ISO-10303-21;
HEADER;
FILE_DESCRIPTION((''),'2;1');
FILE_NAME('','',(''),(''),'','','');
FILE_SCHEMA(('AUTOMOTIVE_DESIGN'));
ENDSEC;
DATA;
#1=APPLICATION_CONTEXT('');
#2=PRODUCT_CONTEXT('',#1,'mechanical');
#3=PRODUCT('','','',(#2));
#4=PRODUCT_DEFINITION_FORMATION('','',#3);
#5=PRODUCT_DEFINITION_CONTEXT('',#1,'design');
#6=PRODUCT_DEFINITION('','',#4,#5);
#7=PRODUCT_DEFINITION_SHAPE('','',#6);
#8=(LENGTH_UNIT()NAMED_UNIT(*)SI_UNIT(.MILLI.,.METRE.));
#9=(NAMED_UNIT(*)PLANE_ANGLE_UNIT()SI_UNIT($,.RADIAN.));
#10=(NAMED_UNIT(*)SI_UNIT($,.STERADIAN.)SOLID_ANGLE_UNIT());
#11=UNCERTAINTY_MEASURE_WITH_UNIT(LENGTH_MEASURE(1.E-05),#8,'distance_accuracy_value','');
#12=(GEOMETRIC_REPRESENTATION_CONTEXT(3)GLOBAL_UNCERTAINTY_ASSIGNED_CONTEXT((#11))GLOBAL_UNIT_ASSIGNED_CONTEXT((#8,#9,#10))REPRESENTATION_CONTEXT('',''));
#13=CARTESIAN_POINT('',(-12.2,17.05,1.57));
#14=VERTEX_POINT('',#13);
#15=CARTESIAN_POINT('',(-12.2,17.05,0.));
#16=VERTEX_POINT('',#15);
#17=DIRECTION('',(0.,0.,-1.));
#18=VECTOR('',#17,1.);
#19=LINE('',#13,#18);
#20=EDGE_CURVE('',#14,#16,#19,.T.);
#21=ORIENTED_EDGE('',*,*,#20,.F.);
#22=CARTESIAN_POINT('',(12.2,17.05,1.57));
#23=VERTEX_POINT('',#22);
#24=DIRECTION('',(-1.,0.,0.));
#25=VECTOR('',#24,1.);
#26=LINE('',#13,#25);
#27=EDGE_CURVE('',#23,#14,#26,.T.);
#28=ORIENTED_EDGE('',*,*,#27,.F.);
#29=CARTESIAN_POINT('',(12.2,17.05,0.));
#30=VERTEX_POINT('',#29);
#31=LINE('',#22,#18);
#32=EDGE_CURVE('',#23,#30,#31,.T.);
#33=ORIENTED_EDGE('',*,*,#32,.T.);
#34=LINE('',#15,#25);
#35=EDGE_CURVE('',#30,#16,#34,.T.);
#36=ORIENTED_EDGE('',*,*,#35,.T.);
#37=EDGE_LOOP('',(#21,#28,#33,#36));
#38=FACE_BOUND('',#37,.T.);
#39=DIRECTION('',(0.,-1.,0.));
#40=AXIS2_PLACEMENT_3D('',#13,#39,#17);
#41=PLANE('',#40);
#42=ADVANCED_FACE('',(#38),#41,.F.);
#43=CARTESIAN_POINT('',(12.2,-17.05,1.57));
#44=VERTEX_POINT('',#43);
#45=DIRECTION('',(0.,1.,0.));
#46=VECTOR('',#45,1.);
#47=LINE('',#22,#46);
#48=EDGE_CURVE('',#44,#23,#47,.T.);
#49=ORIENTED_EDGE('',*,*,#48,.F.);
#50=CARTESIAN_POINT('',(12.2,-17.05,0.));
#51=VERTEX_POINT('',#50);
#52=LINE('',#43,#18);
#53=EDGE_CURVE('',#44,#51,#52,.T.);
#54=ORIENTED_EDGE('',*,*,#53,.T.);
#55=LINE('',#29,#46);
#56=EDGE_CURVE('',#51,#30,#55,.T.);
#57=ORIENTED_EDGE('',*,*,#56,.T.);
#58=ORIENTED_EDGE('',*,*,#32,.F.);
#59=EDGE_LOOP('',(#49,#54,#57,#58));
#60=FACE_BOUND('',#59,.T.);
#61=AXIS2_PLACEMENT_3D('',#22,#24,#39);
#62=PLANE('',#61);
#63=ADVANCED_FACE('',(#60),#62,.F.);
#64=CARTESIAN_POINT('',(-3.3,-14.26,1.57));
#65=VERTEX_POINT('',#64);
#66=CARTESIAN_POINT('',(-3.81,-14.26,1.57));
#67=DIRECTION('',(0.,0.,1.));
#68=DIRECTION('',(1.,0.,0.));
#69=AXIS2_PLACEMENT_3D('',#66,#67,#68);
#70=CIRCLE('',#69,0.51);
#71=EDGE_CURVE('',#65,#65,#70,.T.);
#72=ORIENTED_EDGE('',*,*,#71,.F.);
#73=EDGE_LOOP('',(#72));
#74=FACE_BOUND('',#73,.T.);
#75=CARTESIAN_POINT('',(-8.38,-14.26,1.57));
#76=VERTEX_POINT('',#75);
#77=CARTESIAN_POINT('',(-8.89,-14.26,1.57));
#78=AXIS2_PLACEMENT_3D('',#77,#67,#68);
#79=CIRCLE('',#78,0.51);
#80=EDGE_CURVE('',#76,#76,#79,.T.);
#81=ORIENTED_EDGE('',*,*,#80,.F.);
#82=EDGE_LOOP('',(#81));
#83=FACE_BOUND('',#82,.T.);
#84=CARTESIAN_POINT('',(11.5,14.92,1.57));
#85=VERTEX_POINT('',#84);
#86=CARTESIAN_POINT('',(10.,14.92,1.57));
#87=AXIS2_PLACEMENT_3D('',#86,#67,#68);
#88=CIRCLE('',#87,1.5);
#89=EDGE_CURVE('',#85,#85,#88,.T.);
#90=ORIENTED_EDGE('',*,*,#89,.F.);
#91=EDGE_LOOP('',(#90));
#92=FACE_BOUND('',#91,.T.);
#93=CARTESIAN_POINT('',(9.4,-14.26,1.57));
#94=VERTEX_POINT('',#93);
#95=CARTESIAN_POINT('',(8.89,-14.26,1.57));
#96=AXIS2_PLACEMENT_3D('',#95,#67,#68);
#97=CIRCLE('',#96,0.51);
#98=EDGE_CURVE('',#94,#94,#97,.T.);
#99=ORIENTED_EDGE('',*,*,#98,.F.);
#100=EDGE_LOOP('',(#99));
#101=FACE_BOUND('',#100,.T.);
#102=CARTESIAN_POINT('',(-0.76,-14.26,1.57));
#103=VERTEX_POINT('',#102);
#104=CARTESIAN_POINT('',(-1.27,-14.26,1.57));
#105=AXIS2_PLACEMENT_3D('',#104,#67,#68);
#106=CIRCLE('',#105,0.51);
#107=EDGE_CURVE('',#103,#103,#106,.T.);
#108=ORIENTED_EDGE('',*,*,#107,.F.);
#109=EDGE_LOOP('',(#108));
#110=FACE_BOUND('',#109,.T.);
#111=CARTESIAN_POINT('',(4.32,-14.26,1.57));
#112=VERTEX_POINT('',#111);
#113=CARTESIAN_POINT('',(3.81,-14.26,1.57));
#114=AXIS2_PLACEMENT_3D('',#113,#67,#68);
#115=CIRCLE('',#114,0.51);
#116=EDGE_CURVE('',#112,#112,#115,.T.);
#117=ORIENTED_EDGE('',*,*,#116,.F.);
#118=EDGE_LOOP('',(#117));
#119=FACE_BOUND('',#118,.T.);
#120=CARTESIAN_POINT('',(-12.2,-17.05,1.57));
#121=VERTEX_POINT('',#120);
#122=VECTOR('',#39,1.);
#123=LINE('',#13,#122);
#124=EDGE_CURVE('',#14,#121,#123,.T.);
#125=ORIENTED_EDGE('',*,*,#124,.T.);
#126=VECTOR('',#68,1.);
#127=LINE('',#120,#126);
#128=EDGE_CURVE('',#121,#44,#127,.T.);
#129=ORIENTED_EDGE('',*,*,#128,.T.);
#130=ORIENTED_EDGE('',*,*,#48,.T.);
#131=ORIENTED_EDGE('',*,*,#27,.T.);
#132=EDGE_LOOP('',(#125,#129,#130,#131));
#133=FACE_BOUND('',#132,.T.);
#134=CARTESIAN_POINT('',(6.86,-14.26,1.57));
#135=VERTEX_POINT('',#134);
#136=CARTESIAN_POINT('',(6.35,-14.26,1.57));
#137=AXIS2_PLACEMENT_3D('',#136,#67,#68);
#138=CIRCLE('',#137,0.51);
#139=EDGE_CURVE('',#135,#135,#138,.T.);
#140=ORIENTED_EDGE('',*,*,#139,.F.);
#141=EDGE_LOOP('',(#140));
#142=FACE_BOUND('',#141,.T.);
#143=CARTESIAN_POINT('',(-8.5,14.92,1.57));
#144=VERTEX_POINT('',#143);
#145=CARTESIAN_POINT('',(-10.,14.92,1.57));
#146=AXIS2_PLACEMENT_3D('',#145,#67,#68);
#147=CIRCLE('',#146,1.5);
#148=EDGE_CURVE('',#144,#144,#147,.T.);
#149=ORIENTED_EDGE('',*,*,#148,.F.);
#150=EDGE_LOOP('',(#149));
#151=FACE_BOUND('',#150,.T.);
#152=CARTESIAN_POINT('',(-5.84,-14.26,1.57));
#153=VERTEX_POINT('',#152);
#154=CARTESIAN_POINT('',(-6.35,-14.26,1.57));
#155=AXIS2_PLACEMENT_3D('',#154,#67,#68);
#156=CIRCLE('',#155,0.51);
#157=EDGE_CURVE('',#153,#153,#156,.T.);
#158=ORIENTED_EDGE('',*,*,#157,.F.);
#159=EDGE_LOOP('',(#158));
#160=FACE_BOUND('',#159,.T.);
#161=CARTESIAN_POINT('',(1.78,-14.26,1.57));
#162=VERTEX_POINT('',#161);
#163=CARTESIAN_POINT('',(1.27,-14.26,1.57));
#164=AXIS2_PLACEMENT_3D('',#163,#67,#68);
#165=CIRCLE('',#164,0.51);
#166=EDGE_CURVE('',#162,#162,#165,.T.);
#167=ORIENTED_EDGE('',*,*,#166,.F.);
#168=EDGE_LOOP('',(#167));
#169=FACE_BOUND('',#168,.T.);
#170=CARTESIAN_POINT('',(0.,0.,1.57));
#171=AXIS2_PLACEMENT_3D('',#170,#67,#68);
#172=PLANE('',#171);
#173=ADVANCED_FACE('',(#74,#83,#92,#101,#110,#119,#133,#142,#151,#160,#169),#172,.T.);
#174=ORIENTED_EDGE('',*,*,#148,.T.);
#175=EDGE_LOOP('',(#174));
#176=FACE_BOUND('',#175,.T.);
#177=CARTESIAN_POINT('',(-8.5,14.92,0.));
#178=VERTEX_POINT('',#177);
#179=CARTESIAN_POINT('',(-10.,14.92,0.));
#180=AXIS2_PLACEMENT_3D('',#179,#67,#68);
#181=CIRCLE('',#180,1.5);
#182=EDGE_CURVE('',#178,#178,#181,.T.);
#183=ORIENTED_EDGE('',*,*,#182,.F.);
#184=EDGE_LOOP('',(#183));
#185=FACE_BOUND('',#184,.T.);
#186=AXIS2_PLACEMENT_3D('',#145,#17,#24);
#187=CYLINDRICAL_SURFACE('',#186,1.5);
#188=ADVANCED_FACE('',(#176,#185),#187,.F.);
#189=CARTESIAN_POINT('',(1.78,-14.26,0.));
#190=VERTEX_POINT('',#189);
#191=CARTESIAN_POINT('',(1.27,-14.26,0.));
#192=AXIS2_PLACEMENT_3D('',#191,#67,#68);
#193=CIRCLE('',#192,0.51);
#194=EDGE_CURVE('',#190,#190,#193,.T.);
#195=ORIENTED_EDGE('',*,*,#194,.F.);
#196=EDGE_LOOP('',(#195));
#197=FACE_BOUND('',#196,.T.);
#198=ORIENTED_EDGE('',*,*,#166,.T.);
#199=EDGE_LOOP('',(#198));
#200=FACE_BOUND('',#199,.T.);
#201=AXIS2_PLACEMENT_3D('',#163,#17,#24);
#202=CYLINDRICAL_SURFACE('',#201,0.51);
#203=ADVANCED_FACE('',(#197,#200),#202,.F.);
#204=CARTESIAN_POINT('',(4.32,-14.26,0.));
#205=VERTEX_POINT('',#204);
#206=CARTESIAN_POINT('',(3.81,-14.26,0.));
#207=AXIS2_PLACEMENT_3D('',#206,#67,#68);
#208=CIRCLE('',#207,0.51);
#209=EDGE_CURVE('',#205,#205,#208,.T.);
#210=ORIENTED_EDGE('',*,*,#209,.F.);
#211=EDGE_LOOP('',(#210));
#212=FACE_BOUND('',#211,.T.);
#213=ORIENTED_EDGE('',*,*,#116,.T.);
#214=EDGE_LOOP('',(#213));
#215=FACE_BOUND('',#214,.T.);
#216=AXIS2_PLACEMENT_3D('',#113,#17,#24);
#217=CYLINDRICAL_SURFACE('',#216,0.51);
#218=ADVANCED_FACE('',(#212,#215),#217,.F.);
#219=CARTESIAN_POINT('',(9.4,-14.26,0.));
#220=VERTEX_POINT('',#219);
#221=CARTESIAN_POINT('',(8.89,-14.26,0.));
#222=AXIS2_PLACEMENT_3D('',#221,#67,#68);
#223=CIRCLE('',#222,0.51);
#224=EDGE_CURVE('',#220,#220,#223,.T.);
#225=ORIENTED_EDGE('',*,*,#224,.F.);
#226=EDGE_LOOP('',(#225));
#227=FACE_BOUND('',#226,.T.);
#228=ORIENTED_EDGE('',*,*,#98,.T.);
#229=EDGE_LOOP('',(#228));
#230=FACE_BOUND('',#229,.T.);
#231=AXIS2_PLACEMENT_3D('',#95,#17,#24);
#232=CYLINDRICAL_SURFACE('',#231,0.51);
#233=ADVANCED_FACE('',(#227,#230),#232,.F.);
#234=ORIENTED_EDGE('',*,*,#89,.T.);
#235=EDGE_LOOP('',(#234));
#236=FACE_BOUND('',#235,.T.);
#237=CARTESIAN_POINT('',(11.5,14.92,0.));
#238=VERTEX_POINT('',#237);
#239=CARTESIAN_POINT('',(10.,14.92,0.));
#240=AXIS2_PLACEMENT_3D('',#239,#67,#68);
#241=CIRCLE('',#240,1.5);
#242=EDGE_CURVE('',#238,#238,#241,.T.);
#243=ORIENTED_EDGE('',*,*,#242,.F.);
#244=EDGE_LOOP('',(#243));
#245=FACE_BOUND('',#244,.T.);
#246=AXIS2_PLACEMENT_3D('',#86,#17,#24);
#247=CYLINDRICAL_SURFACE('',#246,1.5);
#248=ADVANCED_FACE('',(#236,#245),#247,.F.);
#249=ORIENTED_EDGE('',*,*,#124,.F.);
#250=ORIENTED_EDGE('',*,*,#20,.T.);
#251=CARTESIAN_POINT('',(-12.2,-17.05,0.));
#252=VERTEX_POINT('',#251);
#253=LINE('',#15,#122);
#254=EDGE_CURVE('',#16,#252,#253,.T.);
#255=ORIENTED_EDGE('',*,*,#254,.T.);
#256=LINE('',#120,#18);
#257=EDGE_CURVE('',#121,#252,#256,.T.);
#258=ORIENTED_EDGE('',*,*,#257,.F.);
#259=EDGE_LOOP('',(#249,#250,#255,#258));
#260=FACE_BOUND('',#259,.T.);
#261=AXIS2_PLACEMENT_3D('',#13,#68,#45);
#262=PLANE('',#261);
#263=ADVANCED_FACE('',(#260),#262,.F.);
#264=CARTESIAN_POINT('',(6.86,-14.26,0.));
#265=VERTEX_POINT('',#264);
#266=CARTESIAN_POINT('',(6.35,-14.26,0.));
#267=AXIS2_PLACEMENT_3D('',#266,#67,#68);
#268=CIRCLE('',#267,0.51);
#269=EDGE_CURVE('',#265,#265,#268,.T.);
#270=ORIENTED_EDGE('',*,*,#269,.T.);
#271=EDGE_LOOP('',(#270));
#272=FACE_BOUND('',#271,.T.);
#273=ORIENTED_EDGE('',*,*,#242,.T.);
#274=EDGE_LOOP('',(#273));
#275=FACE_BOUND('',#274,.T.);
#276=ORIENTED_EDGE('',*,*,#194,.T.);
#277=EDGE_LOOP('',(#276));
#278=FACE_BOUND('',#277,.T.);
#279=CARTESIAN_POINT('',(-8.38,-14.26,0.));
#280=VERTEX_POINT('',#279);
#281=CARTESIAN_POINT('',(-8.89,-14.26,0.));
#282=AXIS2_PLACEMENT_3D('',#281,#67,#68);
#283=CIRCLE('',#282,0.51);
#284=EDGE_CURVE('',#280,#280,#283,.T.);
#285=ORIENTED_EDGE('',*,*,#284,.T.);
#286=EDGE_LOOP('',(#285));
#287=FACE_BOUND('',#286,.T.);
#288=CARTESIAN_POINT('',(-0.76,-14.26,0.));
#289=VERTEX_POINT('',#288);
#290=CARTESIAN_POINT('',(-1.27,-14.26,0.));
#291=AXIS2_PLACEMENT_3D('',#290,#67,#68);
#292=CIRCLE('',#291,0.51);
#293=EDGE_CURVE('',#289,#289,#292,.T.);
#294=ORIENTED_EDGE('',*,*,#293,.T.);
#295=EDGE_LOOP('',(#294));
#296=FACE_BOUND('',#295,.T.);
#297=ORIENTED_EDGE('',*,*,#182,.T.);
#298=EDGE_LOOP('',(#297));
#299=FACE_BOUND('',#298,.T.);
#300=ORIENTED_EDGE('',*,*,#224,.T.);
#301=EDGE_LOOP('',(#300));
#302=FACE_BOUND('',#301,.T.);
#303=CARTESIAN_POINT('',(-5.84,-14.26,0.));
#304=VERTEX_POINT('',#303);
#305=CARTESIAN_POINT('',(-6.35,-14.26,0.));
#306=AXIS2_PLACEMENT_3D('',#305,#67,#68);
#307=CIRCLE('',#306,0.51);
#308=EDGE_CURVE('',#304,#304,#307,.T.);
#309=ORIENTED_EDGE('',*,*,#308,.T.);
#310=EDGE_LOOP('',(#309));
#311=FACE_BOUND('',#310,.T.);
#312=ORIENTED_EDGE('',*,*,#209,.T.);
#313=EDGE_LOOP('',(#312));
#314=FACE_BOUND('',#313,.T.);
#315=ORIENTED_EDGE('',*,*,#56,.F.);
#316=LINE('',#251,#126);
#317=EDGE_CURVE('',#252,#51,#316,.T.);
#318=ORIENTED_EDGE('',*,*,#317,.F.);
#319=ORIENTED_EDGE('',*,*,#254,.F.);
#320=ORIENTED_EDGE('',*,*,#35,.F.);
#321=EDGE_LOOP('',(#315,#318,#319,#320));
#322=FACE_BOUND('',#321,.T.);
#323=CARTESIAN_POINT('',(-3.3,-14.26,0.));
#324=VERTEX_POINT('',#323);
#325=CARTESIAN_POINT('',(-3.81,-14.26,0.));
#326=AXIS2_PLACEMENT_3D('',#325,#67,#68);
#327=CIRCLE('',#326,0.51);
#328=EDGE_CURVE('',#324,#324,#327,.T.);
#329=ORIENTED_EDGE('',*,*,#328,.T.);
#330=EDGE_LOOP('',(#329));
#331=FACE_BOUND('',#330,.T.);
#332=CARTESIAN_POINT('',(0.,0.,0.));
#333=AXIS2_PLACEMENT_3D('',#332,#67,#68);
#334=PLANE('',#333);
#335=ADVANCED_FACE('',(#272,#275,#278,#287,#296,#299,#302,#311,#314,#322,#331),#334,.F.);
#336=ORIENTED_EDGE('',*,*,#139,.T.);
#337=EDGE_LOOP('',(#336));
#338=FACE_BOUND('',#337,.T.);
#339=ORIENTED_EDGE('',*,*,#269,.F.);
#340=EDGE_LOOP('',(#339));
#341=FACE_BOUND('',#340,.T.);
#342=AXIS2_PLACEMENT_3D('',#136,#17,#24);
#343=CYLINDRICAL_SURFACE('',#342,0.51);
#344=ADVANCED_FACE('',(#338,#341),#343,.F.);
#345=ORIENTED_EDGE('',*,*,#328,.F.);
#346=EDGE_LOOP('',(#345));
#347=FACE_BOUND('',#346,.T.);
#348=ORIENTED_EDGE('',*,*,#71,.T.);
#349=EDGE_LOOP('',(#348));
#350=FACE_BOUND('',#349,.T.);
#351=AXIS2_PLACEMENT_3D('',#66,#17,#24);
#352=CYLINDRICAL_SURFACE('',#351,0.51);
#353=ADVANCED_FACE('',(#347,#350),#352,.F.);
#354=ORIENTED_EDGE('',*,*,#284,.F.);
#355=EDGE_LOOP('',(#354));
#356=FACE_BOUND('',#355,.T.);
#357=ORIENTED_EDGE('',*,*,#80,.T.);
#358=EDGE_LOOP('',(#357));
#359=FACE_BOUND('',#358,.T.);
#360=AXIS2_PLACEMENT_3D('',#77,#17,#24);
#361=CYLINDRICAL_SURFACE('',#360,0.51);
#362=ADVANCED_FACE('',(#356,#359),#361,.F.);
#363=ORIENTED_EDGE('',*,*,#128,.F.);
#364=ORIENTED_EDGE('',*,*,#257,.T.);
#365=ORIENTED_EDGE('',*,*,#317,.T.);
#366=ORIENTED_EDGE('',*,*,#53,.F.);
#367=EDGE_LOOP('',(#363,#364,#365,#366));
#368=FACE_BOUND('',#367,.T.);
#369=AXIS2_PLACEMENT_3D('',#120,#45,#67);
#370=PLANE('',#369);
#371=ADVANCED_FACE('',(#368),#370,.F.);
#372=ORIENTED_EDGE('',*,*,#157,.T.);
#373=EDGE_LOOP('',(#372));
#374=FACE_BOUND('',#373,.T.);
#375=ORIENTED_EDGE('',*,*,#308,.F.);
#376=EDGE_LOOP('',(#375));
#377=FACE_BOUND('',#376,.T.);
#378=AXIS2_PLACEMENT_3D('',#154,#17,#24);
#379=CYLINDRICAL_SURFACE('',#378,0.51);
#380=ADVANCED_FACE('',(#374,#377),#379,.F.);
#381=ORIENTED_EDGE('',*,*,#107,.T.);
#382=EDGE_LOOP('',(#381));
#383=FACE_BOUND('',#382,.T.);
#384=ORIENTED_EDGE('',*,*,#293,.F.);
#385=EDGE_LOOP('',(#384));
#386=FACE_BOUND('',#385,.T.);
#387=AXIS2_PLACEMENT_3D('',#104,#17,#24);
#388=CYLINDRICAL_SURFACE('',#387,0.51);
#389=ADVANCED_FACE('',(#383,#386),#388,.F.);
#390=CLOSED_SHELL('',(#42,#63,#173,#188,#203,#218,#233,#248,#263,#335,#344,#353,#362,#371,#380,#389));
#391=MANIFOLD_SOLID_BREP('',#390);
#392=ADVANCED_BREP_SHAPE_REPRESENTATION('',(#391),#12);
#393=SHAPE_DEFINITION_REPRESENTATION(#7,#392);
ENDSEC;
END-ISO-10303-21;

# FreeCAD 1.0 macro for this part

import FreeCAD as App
import Part
import Sketcher
from FreeCAD import Vector


def add_polygon(sketch, points):
    """Adds a closed chain of lines whose ends are joined by coincident constraints."""
    first, n = sketch.GeometryCount, len(points)
    for a, b in zip(points, points[1:] + points[:1]):
        sketch.addGeometry(Part.LineSegment(App.Vector(*a, 0), App.Vector(*b, 0)), False)
    for i in range(n):
        sketch.addConstraint(Sketcher.Constraint("Coincident", first + i, 2, first + (i + 1) % n, 1))

doc = App.newDocument("Part")
body = doc.addObject("PartDesign::Body", "Body")

# Sketch on XY plane
sketch1 = body.newObject("Sketcher::SketchObject", "Sketch")
sketch1.AttachmentSupport = (doc.getObject("XY_Plane"), [""])
sketch1.MapMode = "FlatFace"
add_polygon(sketch1, [(-12.2, 17.1), (-12.2, -17.1), (12.2, -17.1), (12.2, 17.1)])  # lines 0-3
sketch1.addGeometry(Part.Circle(Vector(-8.9, -14.3, 0), Vector(0, 0, 1), 0.5), False)  # 4
sketch1.addGeometry(Part.Circle(Vector(-6.3, -14.3, 0), Vector(0, 0, 1), 0.5), False)  # 5
sketch1.addGeometry(Part.Circle(Vector(-3.8, -14.3, 0), Vector(0, 0, 1), 0.5), False)  # 6
sketch1.addGeometry(Part.Circle(Vector(-1.3, -14.3, 0), Vector(0, 0, 1), 0.5), False)  # 7
sketch1.addGeometry(Part.Circle(Vector(1.3, -14.3, 0), Vector(0, 0, 1), 0.5), False)  # 8
sketch1.addGeometry(Part.Circle(Vector(3.8, -14.3, 0), Vector(0, 0, 1), 0.5), False)  # 9
sketch1.addGeometry(Part.Circle(Vector(6.3, -14.3, 0), Vector(0, 0, 1), 0.5), False)  # 10
sketch1.addGeometry(Part.Circle(Vector(8.9, -14.3, 0), Vector(0, 0, 1), 0.5), False)  # 11
sketch1.addGeometry(Part.Circle(Vector(-10, 14.9, 0), Vector(0, 0, 1), 1.5), False)  # 12
sketch1.addGeometry(Part.Circle(Vector(10, 14.9, 0), Vector(0, 0, 1), 1.5), False)  # 13
sketch1.addConstraint(Sketcher.Constraint("Vertical", 0))
sketch1.addConstraint(Sketcher.Constraint("Horizontal", 1))
sketch1.addConstraint(Sketcher.Constraint("Vertical", 2))
sketch1.addConstraint(Sketcher.Constraint("Horizontal", 3))
sketch1.addConstraint(Sketcher.Constraint("Equal", 4, 5))
sketch1.addConstraint(Sketcher.Constraint("Equal", 5, 6))
sketch1.addConstraint(Sketcher.Constraint("Equal", 6, 7))
sketch1.addConstraint(Sketcher.Constraint("Equal", 7, 8))
sketch1.addConstraint(Sketcher.Constraint("Equal", 8, 9))
sketch1.addConstraint(Sketcher.Constraint("Equal", 9, 10))
sketch1.addConstraint(Sketcher.Constraint("Equal", 10, 11))
sketch1.addConstraint(Sketcher.Constraint("Equal", 12, 13))
sketch1.addConstraint(Sketcher.Constraint("Symmetric", 0, 2, 2, 2, -1, 1))
sketch1.addConstraint(Sketcher.Constraint("Symmetric", 7, 3, 8, 3, -2))
sketch1.addConstraint(Sketcher.Constraint("Symmetric", 6, 3, 9, 3, -2))
sketch1.addConstraint(Sketcher.Constraint("Symmetric", 5, 3, 10, 3, -2))
sketch1.addConstraint(Sketcher.Constraint("Symmetric", 4, 3, 11, 3, -2))
sketch1.addConstraint(Sketcher.Constraint("Symmetric", 12, 3, 13, 3, -2))
sketch1.addConstraint(Sketcher.Constraint("Horizontal", 4, 3, 5, 3))
sketch1.addConstraint(Sketcher.Constraint("Horizontal", 5, 3, 6, 3))
sketch1.addConstraint(Sketcher.Constraint("Horizontal", 6, 3, 7, 3))
sketch1.addConstraint(Sketcher.Constraint("Diameter", 12, 3.0))
sketch1.addConstraint(Sketcher.Constraint("Diameter", 4, 1.02))
sketch1.addConstraint(Sketcher.Constraint("DistanceX", 1, 1, 1, 2, 24.4))
sketch1.addConstraint(Sketcher.Constraint("DistanceY", 0, 2, 0, 1, 34.1))
sketch1.addConstraint(Sketcher.Constraint("DistanceX", 12, 3, -1, 1, 10.0))
sketch1.addConstraint(Sketcher.Constraint("DistanceX", 4, 3, 9, 3, 12.7))
sketch1.addConstraint(Sketcher.Constraint("DistanceX", 5, 3, 10, 3, 12.7))
sketch1.addConstraint(Sketcher.Constraint("DistanceX", 4, 3, -1, 1, 8.89))
sketch1.addConstraint(Sketcher.Constraint("DistanceY", 4, 3, -1, 1, 14.26))
sketch1.addConstraint(Sketcher.Constraint("DistanceX", 7, 3, -1, 1, 1.27))
sketch1.addConstraint(Sketcher.Constraint("DistanceY", -1, 1, 12, 3, 14.92))
pad1 = body.newObject("PartDesign::Pad", "Pad")
pad1.Profile = sketch1
pad1.Length = 1.57

doc.recompute()
